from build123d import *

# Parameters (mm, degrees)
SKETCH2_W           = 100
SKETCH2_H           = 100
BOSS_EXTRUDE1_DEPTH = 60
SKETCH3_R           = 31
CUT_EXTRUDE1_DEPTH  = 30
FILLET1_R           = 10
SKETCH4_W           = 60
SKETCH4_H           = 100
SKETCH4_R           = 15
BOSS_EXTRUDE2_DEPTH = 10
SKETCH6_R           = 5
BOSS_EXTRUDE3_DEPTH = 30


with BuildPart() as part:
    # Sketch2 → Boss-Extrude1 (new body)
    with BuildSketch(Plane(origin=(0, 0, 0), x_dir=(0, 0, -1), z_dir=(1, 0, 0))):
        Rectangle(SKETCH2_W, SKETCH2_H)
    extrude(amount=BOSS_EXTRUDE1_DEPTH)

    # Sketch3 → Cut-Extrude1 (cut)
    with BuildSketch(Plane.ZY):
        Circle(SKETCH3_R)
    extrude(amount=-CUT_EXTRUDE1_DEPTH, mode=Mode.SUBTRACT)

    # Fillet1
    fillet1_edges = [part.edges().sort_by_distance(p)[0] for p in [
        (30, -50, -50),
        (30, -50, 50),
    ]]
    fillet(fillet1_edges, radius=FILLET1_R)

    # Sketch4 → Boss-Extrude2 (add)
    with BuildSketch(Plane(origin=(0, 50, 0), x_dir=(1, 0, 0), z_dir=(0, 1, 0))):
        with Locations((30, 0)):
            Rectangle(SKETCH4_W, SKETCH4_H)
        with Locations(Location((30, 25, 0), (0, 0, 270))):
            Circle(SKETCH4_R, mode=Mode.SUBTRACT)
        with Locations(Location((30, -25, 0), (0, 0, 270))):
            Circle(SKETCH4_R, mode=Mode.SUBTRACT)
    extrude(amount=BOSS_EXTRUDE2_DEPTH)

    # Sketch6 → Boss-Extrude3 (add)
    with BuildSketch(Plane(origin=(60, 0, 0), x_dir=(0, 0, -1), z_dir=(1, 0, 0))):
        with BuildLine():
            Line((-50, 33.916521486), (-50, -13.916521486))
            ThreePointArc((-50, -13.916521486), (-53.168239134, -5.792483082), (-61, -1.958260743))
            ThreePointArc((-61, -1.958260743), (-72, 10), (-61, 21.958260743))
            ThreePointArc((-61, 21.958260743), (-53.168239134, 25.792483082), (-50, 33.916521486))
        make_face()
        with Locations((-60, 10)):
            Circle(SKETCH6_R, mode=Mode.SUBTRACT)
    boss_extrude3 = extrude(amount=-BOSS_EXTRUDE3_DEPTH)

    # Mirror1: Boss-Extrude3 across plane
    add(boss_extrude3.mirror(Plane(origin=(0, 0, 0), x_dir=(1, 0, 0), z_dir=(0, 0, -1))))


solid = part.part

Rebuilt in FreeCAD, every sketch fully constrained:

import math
import FreeCAD as App
import Part
import Sketcher

V = App.Vector


def edges_at(feature, points):
    """Names of the edges that pass closest to the given points."""
    edges = feature.Shape.Edges
    near = lambda p: min(range(len(edges)), key=lambda i: edges[i].distToShape(Part.Vertex(*p))[0])
    return sorted({f"Edge{near(p) + 1}" for p in points})

doc = App.newDocument("Part")
params = doc.addObject("Spreadsheet::Sheet", "Params")
for row, (alias, value) in enumerate([
    ("sketch1_width", "100 mm"),
    ("pad1_length", "60 mm"),
    ("sketch2_diameter", "62 mm"),
    ("pocket1_length", "30 mm"),
    ("fillet_radius", "10 mm"),
    ("sketch3_diameter", "30 mm"),
    ("sketch3_width", "60 mm"),
    ("sketch3_height", "100 mm"),
    ("pad2_length", "10 mm"),
    ("sketch4_diameter", "10 mm"),
    ("sketch4_radius", "12 mm"),
    ("pad3_length", "30 mm"),
], start=1):
    params.set(f"A{row}", alias)
    params.set(f"B{row}", "=" + value)
    params.setAlias(f"B{row}", alias)

body = doc.addObject("PartDesign::Body", "Body")

# Sketch on YZ plane
sketch1 = body.newObject("Sketcher::SketchObject", "Sketch")
sketch1.AttachmentSupport = (doc.getObject("YZ_Plane"), [""])
sketch1.MapMode = "FlatFace"
sketch1.addGeometry([
    Part.LineSegment(V(50, 50, 0), V(-50, 50, 0)),
    Part.LineSegment(V(-50, 50, 0), V(-50, -50, 0)),
    Part.LineSegment(V(-50, -50, 0), V(50, -50, 0)),
    Part.LineSegment(V(50, -50, 0), V(50, 50, 0)),
], False)
sketch1.addConstraint([
    Sketcher.Constraint("Coincident", 0, 2, 1, 1),
    Sketcher.Constraint("Coincident", 1, 2, 2, 1),
    Sketcher.Constraint("Coincident", 2, 2, 3, 1),
    Sketcher.Constraint("Coincident", 3, 2, 0, 1),
    Sketcher.Constraint("Horizontal", 0),
    Sketcher.Constraint("Vertical", 1),
    Sketcher.Constraint("Horizontal", 2),
    Sketcher.Constraint("Vertical", 3),
    Sketcher.Constraint("Symmetric", 0, 2, 2, 2, -1, 1),
    Sketcher.Constraint("Equal", 2, 1),
    Sketcher.Constraint("DistanceX", 0, 2, 0, 1, 100.0),
])
sketch1.setExpression("Constraints[10]", "Params.sketch1_width")
pad1 = body.newObject("PartDesign::Pad", "Pad")
pad1.Profile = sketch1
pad1.setExpression("Length", "Params.pad1_length")

# Sketch on YZ plane
sketch2 = body.newObject("Sketcher::SketchObject", "Sketch001")
sketch2.AttachmentSupport = (doc.getObject("YZ_Plane"), [""])
sketch2.MapMode = "FlatFace"
sketch2.addGeometry(Part.Circle(V(0, 0, 0), V(0, 0, 1), 31), False)
sketch2.addConstraint([
    Sketcher.Constraint("Coincident", 0, 3, -1, 1),
    Sketcher.Constraint("Diameter", 0, 62.0),
])
sketch2.setExpression("Constraints[1]", "Params.sketch2_diameter")
pocket1 = body.newObject("PartDesign::Pocket", "Pocket")
pocket1.Profile = sketch2
pocket1.setExpression("Length", "Params.pocket1_length")
pocket1.Reversed = True
doc.recompute()

fillet = body.newObject("PartDesign::Fillet", "Fillet")
fillet.Base = (pocket1, edges_at(pocket1, [(30, -50, -50), (30, -50, 50)]))
fillet.setExpression("Radius", "Params.fillet_radius")

# Sketch on XZ plane
sketch3 = body.newObject("Sketcher::SketchObject", "Sketch002")
sketch3.AttachmentSupport = (doc.getObject("XZ_Plane"), [""])
sketch3.MapMode = "FlatFace"
sketch3.AttachmentOffset = App.Placement(V(0, 0, -50), App.Rotation())
sketch3.addGeometry([
    Part.LineSegment(V(0, -50, 0), V(0, 50, 0)),  # 0
    Part.LineSegment(V(0, 50, 0), V(60, 50, 0)),  # 1
    Part.LineSegment(V(60, 50, 0), V(60, -50, 0)),  # 2
    Part.LineSegment(V(60, -50, 0), V(0, -50, 0)),  # 3
    Part.Circle(V(30, 25, 0), V(0, 0, 1), 15),  # 4
    Part.Circle(V(30, -25, 0), V(0, 0, 1), 15),  # 5
], False)
sketch3.addConstraint([
    Sketcher.Constraint("Coincident", 0, 2, 1, 1),
    Sketcher.Constraint("Coincident", 1, 2, 2, 1),
    Sketcher.Constraint("Coincident", 2, 2, 3, 1),
    Sketcher.Constraint("Coincident", 3, 2, 0, 1),
    Sketcher.Constraint("Vertical", 0),
    Sketcher.Constraint("Horizontal", 1),
    Sketcher.Constraint("Vertical", 2),
    Sketcher.Constraint("Horizontal", 3),
    Sketcher.Constraint("Equal", 4, 5),
    Sketcher.Constraint("Symmetric", 0, 2, 3, 2, -1, 1),
    Sketcher.Constraint("Symmetric", 4, 3, 5, 3, -1),
    Sketcher.Constraint("Diameter", 4, 30.0),
    Sketcher.Constraint("DistanceX", 1, 1, 1, 2, 60.0),
    Sketcher.Constraint("DistanceY", 0, 1, 0, 2, 100.0),
    Sketcher.Constraint("DistanceX", -1, 1, 4, 3, 30.0),
    Sketcher.Constraint("DistanceY", -1, 1, 4, 3, 25.0),
])
sketch3.setExpression("Constraints[11]", "Params.sketch3_diameter")
sketch3.setExpression("Constraints[12]", "Params.sketch3_width")
sketch3.setExpression("Constraints[13]", "Params.sketch3_height")
pad2 = body.newObject("PartDesign::Pad", "Pad001")
pad2.Profile = sketch3
pad2.setExpression("Length", "Params.pad2_length")
pad2.Reversed = True

# Sketch on YZ plane
sketch4 = body.newObject("Sketcher::SketchObject", "Sketch003")
sketch4.AttachmentSupport = (doc.getObject("YZ_Plane"), [""])
sketch4.MapMode = "FlatFace"
sketch4.AttachmentOffset = App.Placement(V(0, 0, 60), App.Rotation())
sketch4.addGeometry([
    Part.LineSegment(V(-13.916521, 50, 0), V(33.916521, 50, 0)),  # 0
    Part.ArcOfCircle(Part.Circle(V(33.916521, 62, 0), V(0, 0, 1), 12), math.radians(-175.219808), math.radians(-90)),  # 1
    Part.ArcOfCircle(Part.Circle(V(10, 60, 0), V(0, 0, 1), 12), math.radians(4.780192), math.radians(175.219808)),  # 2
    Part.ArcOfCircle(Part.Circle(V(-13.916521, 62, 0), V(0, 0, 1), 12), math.radians(-90), math.radians(-4.780192)),  # 3
    Part.Circle(V(10, 60, 0), V(0, 0, 1), 5),  # 4
], False)
sketch4.addConstraint([
    Sketcher.Constraint("Tangent", 0, 2, 1, 2),
    Sketcher.Constraint("Tangent", 1, 1, 2, 1),
    Sketcher.Constraint("Tangent", 2, 2, 3, 2),
    Sketcher.Constraint("Tangent", 3, 1, 0, 1),
    Sketcher.Constraint("Horizontal", 0),
    Sketcher.Constraint("Coincident", 4, 3, 2, 3),
    Sketcher.Constraint("Equal", 1, 2),
    Sketcher.Constraint("Equal", 2, 3),
    Sketcher.Constraint("Diameter", 4, 10.0),
    Sketcher.Constraint("Radius", 1, 12.0),
    Sketcher.Constraint("DistanceY", -1, 1, 1, 3, 62.0),
    Sketcher.Constraint("DistanceX", -1, 1, 2, 3, 10.0),
    Sketcher.Constraint("DistanceY", -1, 1, 2, 3, 60.0),
])
sketch4.setExpression("Constraints[8]", "Params.sketch4_diameter")
sketch4.setExpression("Constraints[9]", "Params.sketch4_radius")
pad3 = body.newObject("PartDesign::Pad", "Pad002")
pad3.Profile = sketch4
pad3.setExpression("Length", "Params.pad3_length")
pad3.Reversed = True
doc.recompute()

mirrored = body.newObject("PartDesign::Mirrored", "Mirrored")
mirrored.Originals = [pad3]
mirrored.MirrorPlane = (doc.getObject("XY_Plane"), [""])
body.Tip = mirrored

doc.recompute()
